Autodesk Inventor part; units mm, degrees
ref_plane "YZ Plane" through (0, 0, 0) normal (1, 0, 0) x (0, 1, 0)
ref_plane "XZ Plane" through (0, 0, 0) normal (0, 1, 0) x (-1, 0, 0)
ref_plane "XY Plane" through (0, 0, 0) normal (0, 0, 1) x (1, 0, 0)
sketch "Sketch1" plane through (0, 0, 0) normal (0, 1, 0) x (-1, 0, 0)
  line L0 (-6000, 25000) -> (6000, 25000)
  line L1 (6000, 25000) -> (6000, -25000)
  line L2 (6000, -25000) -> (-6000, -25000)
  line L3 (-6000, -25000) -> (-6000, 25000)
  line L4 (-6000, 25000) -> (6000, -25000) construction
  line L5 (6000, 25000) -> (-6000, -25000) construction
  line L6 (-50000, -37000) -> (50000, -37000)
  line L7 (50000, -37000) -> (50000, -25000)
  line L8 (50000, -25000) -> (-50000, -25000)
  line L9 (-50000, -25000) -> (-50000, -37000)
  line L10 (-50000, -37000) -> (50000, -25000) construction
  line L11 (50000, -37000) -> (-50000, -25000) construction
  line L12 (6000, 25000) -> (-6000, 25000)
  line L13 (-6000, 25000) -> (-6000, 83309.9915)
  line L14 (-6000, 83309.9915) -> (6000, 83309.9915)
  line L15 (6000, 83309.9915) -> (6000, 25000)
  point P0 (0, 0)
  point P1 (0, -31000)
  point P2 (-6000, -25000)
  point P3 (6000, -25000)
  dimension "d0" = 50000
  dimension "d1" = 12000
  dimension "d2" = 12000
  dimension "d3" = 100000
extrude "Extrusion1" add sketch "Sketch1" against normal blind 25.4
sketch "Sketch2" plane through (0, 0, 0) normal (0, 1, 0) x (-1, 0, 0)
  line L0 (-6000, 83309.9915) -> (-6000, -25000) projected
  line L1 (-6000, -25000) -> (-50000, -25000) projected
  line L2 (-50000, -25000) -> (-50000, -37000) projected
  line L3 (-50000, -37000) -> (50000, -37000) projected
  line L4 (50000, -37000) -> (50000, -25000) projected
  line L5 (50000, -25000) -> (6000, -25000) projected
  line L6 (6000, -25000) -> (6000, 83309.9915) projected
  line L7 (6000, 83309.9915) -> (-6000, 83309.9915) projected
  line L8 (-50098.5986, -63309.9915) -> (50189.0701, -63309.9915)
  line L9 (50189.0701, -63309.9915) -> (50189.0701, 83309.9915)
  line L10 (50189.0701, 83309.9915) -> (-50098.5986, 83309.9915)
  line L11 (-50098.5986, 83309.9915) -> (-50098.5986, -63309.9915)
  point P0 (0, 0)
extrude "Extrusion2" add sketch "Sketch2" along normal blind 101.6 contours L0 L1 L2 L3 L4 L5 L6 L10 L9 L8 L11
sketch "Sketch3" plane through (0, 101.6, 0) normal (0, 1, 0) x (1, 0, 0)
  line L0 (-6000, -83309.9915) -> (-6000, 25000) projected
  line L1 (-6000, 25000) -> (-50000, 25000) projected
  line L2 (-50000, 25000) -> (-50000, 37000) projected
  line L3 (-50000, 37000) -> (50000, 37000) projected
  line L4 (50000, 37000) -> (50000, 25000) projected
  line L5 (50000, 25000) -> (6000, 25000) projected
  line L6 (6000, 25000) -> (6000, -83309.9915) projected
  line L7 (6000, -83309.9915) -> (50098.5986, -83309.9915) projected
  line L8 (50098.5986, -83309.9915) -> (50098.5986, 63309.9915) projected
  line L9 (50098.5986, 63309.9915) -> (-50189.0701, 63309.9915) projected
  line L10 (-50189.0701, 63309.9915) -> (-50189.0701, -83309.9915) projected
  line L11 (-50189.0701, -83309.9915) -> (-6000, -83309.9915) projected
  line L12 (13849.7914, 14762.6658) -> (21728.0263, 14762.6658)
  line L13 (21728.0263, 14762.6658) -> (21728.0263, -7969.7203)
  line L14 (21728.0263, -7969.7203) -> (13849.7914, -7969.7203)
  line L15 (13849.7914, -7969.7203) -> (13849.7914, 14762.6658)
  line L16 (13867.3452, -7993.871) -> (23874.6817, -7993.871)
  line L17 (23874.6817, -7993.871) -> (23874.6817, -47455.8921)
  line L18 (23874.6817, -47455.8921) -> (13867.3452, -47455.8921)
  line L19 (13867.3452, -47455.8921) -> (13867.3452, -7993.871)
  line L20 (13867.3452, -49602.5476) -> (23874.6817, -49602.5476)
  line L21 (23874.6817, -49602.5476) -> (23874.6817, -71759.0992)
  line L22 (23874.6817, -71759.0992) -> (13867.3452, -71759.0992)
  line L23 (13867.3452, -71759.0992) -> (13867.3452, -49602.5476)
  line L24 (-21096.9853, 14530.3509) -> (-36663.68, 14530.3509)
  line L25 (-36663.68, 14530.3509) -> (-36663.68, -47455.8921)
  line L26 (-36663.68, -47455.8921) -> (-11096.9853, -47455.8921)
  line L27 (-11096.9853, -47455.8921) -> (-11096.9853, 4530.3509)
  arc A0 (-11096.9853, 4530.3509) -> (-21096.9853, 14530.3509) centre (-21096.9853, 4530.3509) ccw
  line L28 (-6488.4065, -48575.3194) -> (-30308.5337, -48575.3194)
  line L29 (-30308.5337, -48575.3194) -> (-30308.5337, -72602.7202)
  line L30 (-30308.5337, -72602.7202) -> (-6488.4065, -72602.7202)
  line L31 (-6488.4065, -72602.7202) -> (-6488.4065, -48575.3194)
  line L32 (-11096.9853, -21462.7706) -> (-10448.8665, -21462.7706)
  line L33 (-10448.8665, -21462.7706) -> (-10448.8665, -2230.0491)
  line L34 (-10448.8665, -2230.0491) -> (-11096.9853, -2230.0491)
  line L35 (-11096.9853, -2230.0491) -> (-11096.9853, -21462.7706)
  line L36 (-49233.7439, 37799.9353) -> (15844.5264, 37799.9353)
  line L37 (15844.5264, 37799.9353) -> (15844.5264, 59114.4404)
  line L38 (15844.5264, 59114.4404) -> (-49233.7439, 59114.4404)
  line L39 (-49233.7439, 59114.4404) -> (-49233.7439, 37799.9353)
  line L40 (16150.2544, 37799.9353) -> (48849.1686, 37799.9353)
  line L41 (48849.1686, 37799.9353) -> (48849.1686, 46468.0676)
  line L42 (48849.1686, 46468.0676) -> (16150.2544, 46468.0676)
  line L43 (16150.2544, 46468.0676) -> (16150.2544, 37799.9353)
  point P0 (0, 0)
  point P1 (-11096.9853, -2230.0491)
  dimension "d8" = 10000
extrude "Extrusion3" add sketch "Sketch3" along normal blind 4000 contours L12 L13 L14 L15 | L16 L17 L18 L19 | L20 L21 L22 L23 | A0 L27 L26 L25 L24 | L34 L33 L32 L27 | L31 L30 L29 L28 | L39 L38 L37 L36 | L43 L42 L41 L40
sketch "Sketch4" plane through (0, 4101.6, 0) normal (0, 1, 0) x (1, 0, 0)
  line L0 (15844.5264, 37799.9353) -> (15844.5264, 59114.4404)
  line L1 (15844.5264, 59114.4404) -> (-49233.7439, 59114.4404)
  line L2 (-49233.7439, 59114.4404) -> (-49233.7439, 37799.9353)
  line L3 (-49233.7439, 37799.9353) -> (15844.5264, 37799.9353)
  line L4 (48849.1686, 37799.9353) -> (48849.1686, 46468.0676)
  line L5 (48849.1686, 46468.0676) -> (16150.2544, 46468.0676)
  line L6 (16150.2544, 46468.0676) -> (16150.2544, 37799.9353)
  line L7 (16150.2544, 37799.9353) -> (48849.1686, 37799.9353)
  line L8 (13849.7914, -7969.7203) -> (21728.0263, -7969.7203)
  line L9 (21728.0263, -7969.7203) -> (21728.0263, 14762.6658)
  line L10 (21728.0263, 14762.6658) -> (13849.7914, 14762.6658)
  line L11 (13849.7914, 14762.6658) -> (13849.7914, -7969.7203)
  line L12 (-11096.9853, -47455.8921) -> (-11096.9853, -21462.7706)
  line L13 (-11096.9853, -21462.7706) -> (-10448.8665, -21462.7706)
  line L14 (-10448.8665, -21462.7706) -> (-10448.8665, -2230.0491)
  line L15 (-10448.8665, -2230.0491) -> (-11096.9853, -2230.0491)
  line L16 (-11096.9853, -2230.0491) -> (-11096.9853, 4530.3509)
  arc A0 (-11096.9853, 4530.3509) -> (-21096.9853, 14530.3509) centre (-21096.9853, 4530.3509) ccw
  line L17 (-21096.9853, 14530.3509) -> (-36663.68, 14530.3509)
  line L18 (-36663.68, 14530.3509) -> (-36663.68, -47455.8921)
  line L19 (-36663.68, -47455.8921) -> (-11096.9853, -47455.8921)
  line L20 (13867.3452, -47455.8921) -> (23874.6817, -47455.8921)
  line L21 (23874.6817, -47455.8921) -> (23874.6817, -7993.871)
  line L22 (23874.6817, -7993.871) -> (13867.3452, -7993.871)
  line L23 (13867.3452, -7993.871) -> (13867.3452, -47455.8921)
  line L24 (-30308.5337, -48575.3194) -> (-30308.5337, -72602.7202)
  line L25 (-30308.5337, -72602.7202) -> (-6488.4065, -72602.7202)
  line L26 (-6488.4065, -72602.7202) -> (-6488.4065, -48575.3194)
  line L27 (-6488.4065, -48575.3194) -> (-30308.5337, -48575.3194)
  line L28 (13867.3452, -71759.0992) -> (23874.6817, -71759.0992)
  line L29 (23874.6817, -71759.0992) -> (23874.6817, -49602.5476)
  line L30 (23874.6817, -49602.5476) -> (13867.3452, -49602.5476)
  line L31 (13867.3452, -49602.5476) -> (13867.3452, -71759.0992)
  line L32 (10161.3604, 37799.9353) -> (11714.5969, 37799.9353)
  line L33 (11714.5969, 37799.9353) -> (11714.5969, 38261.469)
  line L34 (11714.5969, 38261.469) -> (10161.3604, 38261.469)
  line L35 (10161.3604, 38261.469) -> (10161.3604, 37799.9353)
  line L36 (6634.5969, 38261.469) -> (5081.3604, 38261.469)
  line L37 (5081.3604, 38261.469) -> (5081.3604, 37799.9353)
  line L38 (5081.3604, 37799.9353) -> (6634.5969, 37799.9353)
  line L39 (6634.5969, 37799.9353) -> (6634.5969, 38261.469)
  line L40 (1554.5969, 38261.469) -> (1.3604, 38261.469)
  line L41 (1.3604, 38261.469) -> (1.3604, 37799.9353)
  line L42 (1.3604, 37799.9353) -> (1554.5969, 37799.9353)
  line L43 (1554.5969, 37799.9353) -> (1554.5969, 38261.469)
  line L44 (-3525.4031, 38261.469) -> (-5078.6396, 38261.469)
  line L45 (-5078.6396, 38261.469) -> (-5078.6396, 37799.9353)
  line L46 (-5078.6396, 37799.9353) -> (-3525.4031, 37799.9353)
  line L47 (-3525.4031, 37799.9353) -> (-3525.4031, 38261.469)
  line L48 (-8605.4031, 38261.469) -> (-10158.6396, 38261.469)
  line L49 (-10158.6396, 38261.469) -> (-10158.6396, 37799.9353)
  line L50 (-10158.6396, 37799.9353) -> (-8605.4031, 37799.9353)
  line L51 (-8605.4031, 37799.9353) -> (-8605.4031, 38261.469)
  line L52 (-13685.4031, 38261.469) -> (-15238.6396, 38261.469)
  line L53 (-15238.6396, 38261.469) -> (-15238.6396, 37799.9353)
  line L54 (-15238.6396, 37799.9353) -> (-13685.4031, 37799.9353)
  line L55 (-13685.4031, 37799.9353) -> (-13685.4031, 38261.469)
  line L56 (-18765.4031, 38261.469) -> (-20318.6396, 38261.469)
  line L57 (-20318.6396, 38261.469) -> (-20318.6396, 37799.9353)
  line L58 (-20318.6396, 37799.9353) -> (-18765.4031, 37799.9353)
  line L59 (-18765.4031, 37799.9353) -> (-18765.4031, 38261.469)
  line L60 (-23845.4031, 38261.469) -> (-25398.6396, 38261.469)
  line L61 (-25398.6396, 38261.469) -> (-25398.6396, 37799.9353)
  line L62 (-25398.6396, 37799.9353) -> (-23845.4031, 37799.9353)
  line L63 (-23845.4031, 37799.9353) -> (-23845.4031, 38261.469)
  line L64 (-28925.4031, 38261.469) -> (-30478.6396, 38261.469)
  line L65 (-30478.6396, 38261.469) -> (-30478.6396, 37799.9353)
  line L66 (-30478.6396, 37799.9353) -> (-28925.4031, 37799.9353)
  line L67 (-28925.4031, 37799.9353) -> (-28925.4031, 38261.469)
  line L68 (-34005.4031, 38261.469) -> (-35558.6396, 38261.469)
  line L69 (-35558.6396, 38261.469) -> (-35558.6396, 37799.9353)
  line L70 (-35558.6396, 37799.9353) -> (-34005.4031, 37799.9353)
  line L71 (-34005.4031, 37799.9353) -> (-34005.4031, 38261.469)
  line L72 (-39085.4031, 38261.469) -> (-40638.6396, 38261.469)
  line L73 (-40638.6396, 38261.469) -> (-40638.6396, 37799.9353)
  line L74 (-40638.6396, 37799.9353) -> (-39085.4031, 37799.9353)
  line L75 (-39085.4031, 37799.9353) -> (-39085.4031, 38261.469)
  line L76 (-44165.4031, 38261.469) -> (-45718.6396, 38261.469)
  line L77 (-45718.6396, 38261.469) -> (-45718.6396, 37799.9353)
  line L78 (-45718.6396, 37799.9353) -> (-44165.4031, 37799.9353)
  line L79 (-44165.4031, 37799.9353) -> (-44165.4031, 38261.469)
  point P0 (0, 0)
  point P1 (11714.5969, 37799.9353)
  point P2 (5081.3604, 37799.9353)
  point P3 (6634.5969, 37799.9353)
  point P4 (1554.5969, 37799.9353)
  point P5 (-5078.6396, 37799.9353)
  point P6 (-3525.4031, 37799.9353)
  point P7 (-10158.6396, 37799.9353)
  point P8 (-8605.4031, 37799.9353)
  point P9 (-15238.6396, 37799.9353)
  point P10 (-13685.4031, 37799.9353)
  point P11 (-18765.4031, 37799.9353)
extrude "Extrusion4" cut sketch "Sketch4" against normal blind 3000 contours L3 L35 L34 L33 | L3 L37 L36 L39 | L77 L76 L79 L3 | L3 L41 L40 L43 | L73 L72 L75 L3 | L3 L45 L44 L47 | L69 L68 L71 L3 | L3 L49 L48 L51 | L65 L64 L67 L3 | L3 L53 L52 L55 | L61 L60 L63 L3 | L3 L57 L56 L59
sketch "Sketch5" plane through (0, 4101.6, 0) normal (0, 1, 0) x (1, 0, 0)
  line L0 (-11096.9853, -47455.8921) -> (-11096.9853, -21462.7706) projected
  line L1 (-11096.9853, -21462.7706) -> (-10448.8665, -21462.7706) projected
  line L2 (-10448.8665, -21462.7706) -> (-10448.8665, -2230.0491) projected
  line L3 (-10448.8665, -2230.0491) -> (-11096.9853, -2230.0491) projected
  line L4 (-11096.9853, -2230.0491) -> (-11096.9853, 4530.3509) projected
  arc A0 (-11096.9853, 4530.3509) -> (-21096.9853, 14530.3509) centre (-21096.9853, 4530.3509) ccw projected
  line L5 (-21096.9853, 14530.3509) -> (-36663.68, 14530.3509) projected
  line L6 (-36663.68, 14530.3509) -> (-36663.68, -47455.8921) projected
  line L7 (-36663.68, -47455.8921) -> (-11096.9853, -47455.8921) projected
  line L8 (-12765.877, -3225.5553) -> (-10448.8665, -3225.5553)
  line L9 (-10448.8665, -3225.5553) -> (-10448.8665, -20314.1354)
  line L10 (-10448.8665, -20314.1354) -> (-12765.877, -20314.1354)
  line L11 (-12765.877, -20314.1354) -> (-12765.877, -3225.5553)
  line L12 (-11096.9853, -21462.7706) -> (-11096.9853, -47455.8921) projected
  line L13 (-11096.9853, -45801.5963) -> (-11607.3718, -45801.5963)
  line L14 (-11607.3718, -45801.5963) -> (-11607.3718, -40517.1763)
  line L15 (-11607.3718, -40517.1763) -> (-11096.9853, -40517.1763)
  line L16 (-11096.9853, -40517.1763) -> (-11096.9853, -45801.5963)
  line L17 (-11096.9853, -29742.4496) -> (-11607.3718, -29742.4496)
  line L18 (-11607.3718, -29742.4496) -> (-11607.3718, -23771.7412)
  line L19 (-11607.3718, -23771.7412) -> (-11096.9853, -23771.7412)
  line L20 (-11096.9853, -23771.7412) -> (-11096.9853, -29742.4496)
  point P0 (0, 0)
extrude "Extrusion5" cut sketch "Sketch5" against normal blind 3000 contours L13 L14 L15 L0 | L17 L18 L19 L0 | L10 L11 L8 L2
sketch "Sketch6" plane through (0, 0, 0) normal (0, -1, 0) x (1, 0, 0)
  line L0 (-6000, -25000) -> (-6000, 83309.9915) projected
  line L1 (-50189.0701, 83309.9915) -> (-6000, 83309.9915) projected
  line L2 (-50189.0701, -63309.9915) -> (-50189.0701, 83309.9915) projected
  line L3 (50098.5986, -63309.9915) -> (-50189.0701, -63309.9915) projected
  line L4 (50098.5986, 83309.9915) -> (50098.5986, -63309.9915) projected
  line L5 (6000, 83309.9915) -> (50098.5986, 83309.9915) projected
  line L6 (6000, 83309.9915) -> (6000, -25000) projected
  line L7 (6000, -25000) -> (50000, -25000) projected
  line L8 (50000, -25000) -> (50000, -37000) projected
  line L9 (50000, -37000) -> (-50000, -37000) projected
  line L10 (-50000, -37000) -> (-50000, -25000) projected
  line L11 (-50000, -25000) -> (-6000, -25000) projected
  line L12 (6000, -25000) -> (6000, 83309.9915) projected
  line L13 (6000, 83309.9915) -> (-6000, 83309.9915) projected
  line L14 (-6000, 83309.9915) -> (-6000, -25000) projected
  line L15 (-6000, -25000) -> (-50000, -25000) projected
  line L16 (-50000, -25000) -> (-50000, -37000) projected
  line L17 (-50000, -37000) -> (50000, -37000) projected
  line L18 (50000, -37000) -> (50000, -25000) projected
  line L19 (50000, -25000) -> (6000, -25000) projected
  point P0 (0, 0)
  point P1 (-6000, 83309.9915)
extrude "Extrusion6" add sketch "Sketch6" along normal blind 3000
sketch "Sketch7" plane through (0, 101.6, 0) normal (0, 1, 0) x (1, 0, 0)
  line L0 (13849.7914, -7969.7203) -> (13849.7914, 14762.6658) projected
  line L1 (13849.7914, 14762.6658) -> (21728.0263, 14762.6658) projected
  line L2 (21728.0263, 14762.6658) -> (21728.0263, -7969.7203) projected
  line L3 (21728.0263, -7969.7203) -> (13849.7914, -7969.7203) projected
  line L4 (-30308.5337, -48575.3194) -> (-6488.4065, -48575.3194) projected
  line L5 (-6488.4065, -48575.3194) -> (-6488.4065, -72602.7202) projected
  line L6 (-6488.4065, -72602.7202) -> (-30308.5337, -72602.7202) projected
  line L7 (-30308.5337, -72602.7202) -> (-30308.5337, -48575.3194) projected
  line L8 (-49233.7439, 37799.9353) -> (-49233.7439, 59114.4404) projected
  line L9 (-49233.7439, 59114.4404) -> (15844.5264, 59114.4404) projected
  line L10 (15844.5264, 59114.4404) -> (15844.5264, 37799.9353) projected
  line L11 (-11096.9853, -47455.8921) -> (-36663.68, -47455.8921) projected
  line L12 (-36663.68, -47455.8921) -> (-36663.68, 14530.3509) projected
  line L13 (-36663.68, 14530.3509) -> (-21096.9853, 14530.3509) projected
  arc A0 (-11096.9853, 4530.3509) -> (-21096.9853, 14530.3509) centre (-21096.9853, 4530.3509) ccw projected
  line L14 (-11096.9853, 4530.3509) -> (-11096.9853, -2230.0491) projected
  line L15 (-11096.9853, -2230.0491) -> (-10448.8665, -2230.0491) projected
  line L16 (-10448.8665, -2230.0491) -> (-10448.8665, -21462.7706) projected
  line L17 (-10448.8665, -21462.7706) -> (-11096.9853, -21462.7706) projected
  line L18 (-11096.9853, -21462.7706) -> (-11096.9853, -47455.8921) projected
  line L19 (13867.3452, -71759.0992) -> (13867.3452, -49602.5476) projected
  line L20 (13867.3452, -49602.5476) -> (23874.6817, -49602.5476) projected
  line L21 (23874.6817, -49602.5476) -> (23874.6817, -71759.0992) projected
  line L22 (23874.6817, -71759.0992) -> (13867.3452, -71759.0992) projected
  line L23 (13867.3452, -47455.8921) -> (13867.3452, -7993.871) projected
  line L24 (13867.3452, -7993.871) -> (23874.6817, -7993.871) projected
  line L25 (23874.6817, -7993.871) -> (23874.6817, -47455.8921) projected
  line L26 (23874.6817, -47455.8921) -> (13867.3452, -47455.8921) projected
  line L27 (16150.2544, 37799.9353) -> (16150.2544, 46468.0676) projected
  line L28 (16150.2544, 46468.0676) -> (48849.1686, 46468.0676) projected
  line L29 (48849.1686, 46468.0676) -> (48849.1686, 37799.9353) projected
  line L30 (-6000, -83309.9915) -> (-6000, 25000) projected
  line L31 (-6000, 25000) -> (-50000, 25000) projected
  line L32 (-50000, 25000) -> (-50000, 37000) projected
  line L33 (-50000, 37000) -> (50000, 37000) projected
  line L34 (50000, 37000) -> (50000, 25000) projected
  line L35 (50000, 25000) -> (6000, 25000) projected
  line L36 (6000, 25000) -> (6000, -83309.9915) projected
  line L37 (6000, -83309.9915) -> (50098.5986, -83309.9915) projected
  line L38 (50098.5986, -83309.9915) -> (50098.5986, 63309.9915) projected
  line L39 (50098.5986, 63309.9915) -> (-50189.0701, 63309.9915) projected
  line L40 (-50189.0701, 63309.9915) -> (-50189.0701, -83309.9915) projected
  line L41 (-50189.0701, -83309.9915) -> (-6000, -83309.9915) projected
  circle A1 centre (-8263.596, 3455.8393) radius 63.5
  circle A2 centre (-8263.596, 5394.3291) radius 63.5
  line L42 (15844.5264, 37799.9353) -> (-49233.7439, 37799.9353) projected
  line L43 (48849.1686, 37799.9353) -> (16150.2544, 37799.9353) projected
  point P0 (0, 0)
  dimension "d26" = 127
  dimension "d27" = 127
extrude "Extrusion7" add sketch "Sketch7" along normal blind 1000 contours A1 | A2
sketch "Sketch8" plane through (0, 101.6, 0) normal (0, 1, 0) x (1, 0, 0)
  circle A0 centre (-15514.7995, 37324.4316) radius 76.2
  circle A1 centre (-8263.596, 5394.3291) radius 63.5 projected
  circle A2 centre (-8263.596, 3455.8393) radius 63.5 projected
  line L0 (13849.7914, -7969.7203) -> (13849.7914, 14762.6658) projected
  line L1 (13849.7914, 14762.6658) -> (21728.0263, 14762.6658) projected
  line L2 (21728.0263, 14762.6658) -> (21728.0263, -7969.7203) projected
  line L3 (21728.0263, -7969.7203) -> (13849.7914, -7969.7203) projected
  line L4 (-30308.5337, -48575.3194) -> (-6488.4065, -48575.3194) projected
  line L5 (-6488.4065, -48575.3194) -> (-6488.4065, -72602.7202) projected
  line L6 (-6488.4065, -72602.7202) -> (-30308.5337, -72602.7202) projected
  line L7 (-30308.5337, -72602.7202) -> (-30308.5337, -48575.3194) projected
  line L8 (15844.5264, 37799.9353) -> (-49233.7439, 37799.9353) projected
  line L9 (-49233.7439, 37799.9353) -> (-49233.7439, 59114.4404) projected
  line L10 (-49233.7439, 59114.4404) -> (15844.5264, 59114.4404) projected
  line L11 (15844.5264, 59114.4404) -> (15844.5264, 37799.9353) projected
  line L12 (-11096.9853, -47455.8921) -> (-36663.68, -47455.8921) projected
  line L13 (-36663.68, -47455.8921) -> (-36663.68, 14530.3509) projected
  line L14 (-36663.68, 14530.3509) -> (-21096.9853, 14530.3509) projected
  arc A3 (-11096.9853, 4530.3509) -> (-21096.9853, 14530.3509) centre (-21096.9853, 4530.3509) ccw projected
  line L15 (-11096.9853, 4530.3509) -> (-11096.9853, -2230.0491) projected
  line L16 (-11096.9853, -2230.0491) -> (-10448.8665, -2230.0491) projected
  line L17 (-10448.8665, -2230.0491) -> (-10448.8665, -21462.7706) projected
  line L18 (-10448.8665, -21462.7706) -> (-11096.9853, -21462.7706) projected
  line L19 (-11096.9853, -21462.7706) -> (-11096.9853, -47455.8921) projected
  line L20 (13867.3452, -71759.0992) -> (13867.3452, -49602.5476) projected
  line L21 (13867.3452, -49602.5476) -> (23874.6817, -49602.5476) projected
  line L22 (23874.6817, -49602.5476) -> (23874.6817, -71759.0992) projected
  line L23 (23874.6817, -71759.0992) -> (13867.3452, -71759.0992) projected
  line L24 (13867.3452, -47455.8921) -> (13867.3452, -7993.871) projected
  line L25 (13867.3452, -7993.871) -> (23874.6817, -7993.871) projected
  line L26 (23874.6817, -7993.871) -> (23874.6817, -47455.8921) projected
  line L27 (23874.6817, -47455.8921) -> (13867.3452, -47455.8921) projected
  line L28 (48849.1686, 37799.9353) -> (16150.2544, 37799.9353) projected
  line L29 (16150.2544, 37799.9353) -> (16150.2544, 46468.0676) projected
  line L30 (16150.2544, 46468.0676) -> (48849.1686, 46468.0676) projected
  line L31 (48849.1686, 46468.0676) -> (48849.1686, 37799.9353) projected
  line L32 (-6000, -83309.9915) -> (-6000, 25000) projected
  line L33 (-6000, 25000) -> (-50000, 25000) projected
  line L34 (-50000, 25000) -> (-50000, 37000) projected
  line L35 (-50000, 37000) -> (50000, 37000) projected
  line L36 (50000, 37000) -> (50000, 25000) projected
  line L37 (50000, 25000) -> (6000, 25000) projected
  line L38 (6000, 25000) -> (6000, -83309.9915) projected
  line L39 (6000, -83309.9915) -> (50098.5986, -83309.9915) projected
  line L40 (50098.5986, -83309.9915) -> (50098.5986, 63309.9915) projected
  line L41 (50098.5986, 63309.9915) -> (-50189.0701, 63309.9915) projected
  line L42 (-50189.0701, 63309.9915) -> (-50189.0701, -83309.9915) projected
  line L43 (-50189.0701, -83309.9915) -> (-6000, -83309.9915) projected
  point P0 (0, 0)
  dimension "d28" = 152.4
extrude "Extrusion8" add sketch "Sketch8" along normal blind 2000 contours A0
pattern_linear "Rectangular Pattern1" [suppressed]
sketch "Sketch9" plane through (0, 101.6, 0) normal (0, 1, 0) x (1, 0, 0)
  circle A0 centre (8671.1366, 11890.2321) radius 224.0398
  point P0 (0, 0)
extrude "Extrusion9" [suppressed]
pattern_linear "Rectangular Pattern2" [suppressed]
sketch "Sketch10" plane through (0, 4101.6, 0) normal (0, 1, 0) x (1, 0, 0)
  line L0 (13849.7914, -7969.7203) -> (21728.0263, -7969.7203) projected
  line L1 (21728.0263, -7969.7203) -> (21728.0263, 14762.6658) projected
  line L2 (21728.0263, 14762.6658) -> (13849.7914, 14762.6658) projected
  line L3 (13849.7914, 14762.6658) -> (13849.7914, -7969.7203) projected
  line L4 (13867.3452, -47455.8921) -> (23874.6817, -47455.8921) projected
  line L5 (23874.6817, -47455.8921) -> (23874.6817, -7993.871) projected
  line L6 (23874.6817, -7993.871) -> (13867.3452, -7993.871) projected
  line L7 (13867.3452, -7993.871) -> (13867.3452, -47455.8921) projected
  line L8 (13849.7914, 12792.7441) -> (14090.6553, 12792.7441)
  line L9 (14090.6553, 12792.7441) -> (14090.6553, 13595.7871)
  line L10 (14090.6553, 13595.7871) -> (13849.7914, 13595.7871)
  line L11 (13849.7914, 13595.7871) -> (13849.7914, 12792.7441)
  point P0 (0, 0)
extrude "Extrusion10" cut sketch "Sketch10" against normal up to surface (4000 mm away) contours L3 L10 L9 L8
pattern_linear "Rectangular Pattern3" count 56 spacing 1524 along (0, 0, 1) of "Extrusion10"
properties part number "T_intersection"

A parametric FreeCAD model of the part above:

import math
import FreeCAD as App
import Part
import Sketcher

V = App.Vector

doc = App.newDocument("Part")
body = doc.addObject("PartDesign::Body", "Body")
body.AllowCompound = True

# Sketch on XZ plane
sketch1 = doc.addObject("Sketcher::SketchObject", "Sketch")
body.addObject(sketch1)
sketch1.AttachmentSupport = (doc.XZ_Plane, [""])
sketch1.MapMode = "FlatFace"
sketch1.addGeometry([
    Part.LineSegment(V(6000, 83309.9915, 0), V(6000, -25000, 0)),  # 0
    Part.LineSegment(V(6000, -25000, 0), V(50000, -25000, 0)),  # 1
    Part.LineSegment(V(50000, -25000, 0), V(50000, -37000, 0)),  # 2
    Part.LineSegment(V(50000, -37000, 0), V(-50000, -37000, 0)),  # 3
    Part.LineSegment(V(-50000, -37000, 0), V(-50000, -25000, 0)),  # 4
    Part.LineSegment(V(-50000, -25000, 0), V(-6000, -25000, 0)),  # 5
    Part.LineSegment(V(-6000, -25000, 0), V(-6000, 83309.9915, 0)),  # 6
    Part.LineSegment(V(-6000, 83309.9915, 0), V(6000, 83309.9915, 0)),  # 7
], False)
sketch1.addConstraint([
    Sketcher.Constraint("Coincident", 0, 2, 1, 1),
    Sketcher.Constraint("Coincident", 1, 2, 2, 1),
    Sketcher.Constraint("Coincident", 2, 2, 3, 1),
    Sketcher.Constraint("Coincident", 3, 2, 4, 1),
    Sketcher.Constraint("Coincident", 4, 2, 5, 1),
    Sketcher.Constraint("Coincident", 5, 2, 6, 1),
    Sketcher.Constraint("Coincident", 6, 2, 7, 1),
    Sketcher.Constraint("Coincident", 7, 2, 0, 1),
    Sketcher.Constraint("Vertical", 0),
    Sketcher.Constraint("Horizontal", 1),
    Sketcher.Constraint("Vertical", 2),
    Sketcher.Constraint("Horizontal", 3),
    Sketcher.Constraint("Vertical", 4),
    Sketcher.Constraint("Horizontal", 5),
    Sketcher.Constraint("Vertical", 6),
    Sketcher.Constraint("Horizontal", 7),
    Sketcher.Constraint("Symmetric", 1, 2, 4, 2, -2),
    Sketcher.Constraint("Equal", 1, 5),
    Sketcher.Constraint("Equal", 7, 2),
    Sketcher.Constraint("DistanceX", 3, 2, 3, 1, 100000.0),
    Sketcher.Constraint("DistanceX", 7, 1, 7, 2, 12000.0),
    Sketcher.Constraint("DistanceY", 0, 2, -1, 1, 25000.0),
    Sketcher.Constraint("DistanceY", 0, 2, 0, 1, 108309.9915),
])
pad1 = doc.addObject("PartDesign::Pad", "Pad")
body.addObject(pad1)
pad1.Profile = sketch1
pad1.Length = 25.4

# Sketch on XZ plane
sketch2 = doc.addObject("Sketcher::SketchObject", "Sketch001")
body.addObject(sketch2)
sketch2.AttachmentSupport = (doc.XZ_Plane, [""])
sketch2.MapMode = "FlatFace"
sketch2.addGeometry([
    Part.LineSegment(V(6000, -25000, 0), V(6000, 83309.9915, 0)),  # 0
    Part.LineSegment(V(6000, 83309.9915, 0), V(50098.5986, 83309.9915, 0)),  # 1
    Part.LineSegment(V(50098.5986, 83309.9915, 0), V(50098.5986, -63309.9915, 0)),  # 2
    Part.LineSegment(V(50098.5986, -63309.9915, 0), V(-50189.0701, -63309.9915, 0)),  # 3
    Part.LineSegment(V(-50189.0701, -63309.9915, 0), V(-50189.0701, 83309.9915, 0)),  # 4
    Part.LineSegment(V(-50189.0701, 83309.9915, 0), V(-6000, 83309.9915, 0)),  # 5
    Part.LineSegment(V(-6000, 83309.9915, 0), V(-6000, -25000, 0)),  # 6
    Part.LineSegment(V(-6000, -25000, 0), V(-50000, -25000, 0)),  # 7
    Part.LineSegment(V(-50000, -25000, 0), V(-50000, -37000, 0)),  # 8
    Part.LineSegment(V(-50000, -37000, 0), V(50000, -37000, 0)),  # 9
    Part.LineSegment(V(50000, -37000, 0), V(50000, -25000, 0)),  # 10
    Part.LineSegment(V(50000, -25000, 0), V(6000, -25000, 0)),  # 11
], False)
sketch2.addConstraint([
    Sketcher.Constraint("Coincident", 0, 2, 1, 1),
    Sketcher.Constraint("Coincident", 1, 2, 2, 1),
    Sketcher.Constraint("Coincident", 2, 2, 3, 1),
    Sketcher.Constraint("Coincident", 3, 2, 4, 1),
    Sketcher.Constraint("Coincident", 4, 2, 5, 1),
    Sketcher.Constraint("Coincident", 5, 2, 6, 1),
    Sketcher.Constraint("Coincident", 6, 2, 7, 1),
    Sketcher.Constraint("Coincident", 7, 2, 8, 1),
    Sketcher.Constraint("Coincident", 8, 2, 9, 1),
    Sketcher.Constraint("Coincident", 9, 2, 10, 1),
    Sketcher.Constraint("Coincident", 10, 2, 11, 1),
    Sketcher.Constraint("Coincident", 11, 2, 0, 1),
    Sketcher.Constraint("Vertical", 0),
    Sketcher.Constraint("Horizontal", 1),
    Sketcher.Constraint("Vertical", 2),
    Sketcher.Constraint("Horizontal", 3),
    Sketcher.Constraint("Vertical", 4),
    Sketcher.Constraint("Horizontal", 5),
    Sketcher.Constraint("Vertical", 6),
    Sketcher.Constraint("Horizontal", 7),
    Sketcher.Constraint("Vertical", 8),
    Sketcher.Constraint("Horizontal", 9),
    Sketcher.Constraint("Vertical", 10),
    Sketcher.Constraint("Horizontal", 11),
    Sketcher.Constraint("Symmetric", 0, 2, 5, 2, -2),
    Sketcher.Constraint("Symmetric", 7, 2, 10, 2, -2),
    Sketcher.Constraint("DistanceX", 7, 2, 7, 1, 44000.0),
    Sketcher.Constraint("DistanceX", 9, 1, 9, 2, 100000.0),
    Sketcher.Constraint("DistanceY", 8, 2, 8, 1, 12000.0),
    Sketcher.Constraint("DistanceY", 6, 2, -1, 1, 25000.0),
    Sketcher.Constraint("DistanceX", 5, 1, 5, 2, 44189.07),
    Sketcher.Constraint("DistanceY", 2, 2, 2, 1, 146619.983),
    Sketcher.Constraint("DistanceX", 1, 1, 1, 2, 44098.5986),
    Sketcher.Constraint("DistanceY", 0, 1, 0, 2, 108309.9915),
])
pad2 = doc.addObject("PartDesign::Pad", "Pad001")
body.addObject(pad2)
pad2.Profile = sketch2
pad2.Length = 101.6
pad2.Reversed = True

# Sketch on XZ plane
sketch3 = doc.addObject("Sketcher::SketchObject", "Sketch002")
body.addObject(sketch3)
sketch3.AttachmentSupport = (doc.XZ_Plane, [""])
sketch3.MapMode = "FlatFace"
sketch3.AttachmentOffset = App.Placement(V(0, 0, -101.6), App.Rotation())
sketch3.addGeometry([
    Part.LineSegment(V(21728.0263, -14762.6658, 0), V(13849.7914, -14762.6658, 0)),  # 0
    Part.LineSegment(V(13849.7914, -14762.6658, 0), V(13849.7914, 7969.7203, 0)),  # 1
    Part.LineSegment(V(13849.7914, 7969.7203, 0), V(21728.0263, 7969.7203, 0)),  # 2
    Part.LineSegment(V(21728.0263, 7969.7203, 0), V(21728.0263, -14762.6658, 0)),  # 3
    Part.LineSegment(V(23874.6817, 7993.871, 0), V(13867.3452, 7993.871, 0)),  # 4
    Part.LineSegment(V(13867.3452, 7993.871, 0), V(13867.3452, 47455.8921, 0)),  # 5
    Part.LineSegment(V(13867.3452, 47455.8921, 0), V(23874.6817, 47455.8921, 0)),  # 6
    Part.LineSegment(V(23874.6817, 47455.8921, 0), V(23874.6817, 7993.871, 0)),  # 7
    Part.LineSegment(V(23874.6817, 49602.5476, 0), V(13867.3452, 49602.5476, 0)),  # 8
    Part.LineSegment(V(13867.3452, 49602.5476, 0), V(13867.3452, 71759.0992, 0)),  # 9
    Part.LineSegment(V(13867.3452, 71759.0992, 0), V(23874.6817, 71759.0992, 0)),  # 10
    Part.LineSegment(V(23874.6817, 71759.0992, 0), V(23874.6817, 49602.5476, 0)),  # 11
    Part.ArcOfCircle(Part.Circle(V(-21096.9853, -4530.3509, 0), V(0, 0, 1), 10000), math.radians(-90), math.radians(0)),  # 12
    Part.LineSegment(V(-21096.9853, -14530.3509, 0), V(-36663.68, -14530.3509, 0)),  # 13
    Part.LineSegment(V(-36663.68, -14530.3509, 0), V(-36663.68, 47455.8921, 0)),  # 14
    Part.LineSegment(V(-36663.68, 47455.8921, 0), V(-11096.9853, 47455.8921, 0)),  # 15
    Part.LineSegment(V(-11096.9853, 47455.8921, 0), V(-11096.9853, 21462.7706, 0)),  # 16
    Part.LineSegment(V(-11096.9853, 21462.7706, 0), V(-10448.8665, 21462.7706, 0)),  # 17
    Part.LineSegment(V(-10448.8665, 21462.7706, 0), V(-10448.8665, 2230.0491, 0)),  # 18
    Part.LineSegment(V(-10448.8665, 2230.0491, 0), V(-11096.9853, 2230.0491, 0)),  # 19
    Part.LineSegment(V(-11096.9853, 2230.0491, 0), V(-11096.9853, -4530.3509, 0)),  # 20
    Part.LineSegment(V(-6488.4065, 72602.7202, 0), V(-6488.4065, 48575.3194, 0)),  # 21
    Part.LineSegment(V(-6488.4065, 48575.3194, 0), V(-30308.5337, 48575.3194, 0)),  # 22
    Part.LineSegment(V(-30308.5337, 48575.3194, 0), V(-30308.5337, 72602.7202, 0)),  # 23
    Part.LineSegment(V(-30308.5337, 72602.7202, 0), V(-6488.4065, 72602.7202, 0)),  # 24
    Part.LineSegment(V(-49233.7439, -59114.4404, 0), V(-49233.7439, -37799.9353, 0)),  # 25
    Part.LineSegment(V(-49233.7439, -37799.9353, 0), V(15844.5264, -37799.9353, 0)),  # 26
    Part.LineSegment(V(15844.5264, -37799.9353, 0), V(15844.5264, -59114.4404, 0)),  # 27
    Part.LineSegment(V(15844.5264, -59114.4404, 0), V(-49233.7439, -59114.4404, 0)),  # 28
    Part.LineSegment(V(16150.2544, -46468.0676, 0), V(16150.2544, -37799.9353, 0)),  # 29
    Part.LineSegment(V(16150.2544, -37799.9353, 0), V(48849.1686, -37799.9353, 0)),  # 30
    Part.LineSegment(V(48849.1686, -37799.9353, 0), V(48849.1686, -46468.0676, 0)),  # 31
    Part.LineSegment(V(48849.1686, -46468.0676, 0), V(16150.2544, -46468.0676, 0)),  # 32
], False)
sketch3.addConstraint([
    Sketcher.Constraint("Coincident", 0, 2, 1, 1),
    Sketcher.Constraint("Coincident", 1, 2, 2, 1),
    Sketcher.Constraint("Coincident", 2, 2, 3, 1),
    Sketcher.Constraint("Coincident", 3, 2, 0, 1),
    Sketcher.Constraint("Coincident", 4, 2, 5, 1),
    Sketcher.Constraint("Coincident", 5, 2, 6, 1),
    Sketcher.Constraint("Coincident", 6, 2, 7, 1),
    Sketcher.Constraint("Coincident", 7, 2, 4, 1),
    Sketcher.Constraint("Coincident", 8, 2, 9, 1),
    Sketcher.Constraint("Coincident", 9, 2, 10, 1),
    Sketcher.Constraint("Coincident", 10, 2, 11, 1),
    Sketcher.Constraint("Coincident", 11, 2, 8, 1),
    Sketcher.Constraint("Coincident", 12, 1, 13, 1),
    Sketcher.Constraint("Coincident", 13, 2, 14, 1),
    Sketcher.Constraint("Coincident", 14, 2, 15, 1),
    Sketcher.Constraint("Coincident", 15, 2, 16, 1),
    Sketcher.Constraint("Coincident", 16, 2, 17, 1),
    Sketcher.Constraint("Coincident", 17, 2, 18, 1),
    Sketcher.Constraint("Coincident", 18, 2, 19, 1),
    Sketcher.Constraint("Coincident", 19, 2, 20, 1),
    Sketcher.Constraint("Coincident", 20, 2, 12, 2),
    Sketcher.Constraint("Coincident", 21, 2, 22, 1),
    Sketcher.Constraint("Coincident", 22, 2, 23, 1),
    Sketcher.Constraint("Coincident", 23, 2, 24, 1),
    Sketcher.Constraint("Coincident", 24, 2, 21, 1),
    Sketcher.Constraint("Coincident", 25, 2, 26, 1),
    Sketcher.Constraint("Coincident", 26, 2, 27, 1),
    Sketcher.Constraint("Coincident", 27, 2, 28, 1),
    Sketcher.Constraint("Coincident", 28, 2, 25, 1),
    Sketcher.Constraint("Coincident", 29, 2, 30, 1),
    Sketcher.Constraint("Coincident", 30, 2, 31, 1),
    Sketcher.Constraint("Coincident", 31, 2, 32, 1),
    Sketcher.Constraint("Coincident", 32, 2, 29, 1),
    Sketcher.Constraint("Horizontal", 0),
    Sketcher.Constraint("Vertical", 1),
    Sketcher.Constraint("Horizontal", 2),
    Sketcher.Constraint("Vertical", 3),
    Sketcher.Constraint("Horizontal", 4),
    Sketcher.Constraint("Vertical", 5),
    Sketcher.Constraint("Horizontal", 6),
    Sketcher.Constraint("Vertical", 7),
    Sketcher.Constraint("Horizontal", 8),
    Sketcher.Constraint("Vertical", 9),
    Sketcher.Constraint("Horizontal", 10),
    Sketcher.Constraint("Vertical", 11),
    Sketcher.Constraint("Horizontal", 13),
    Sketcher.Constraint("Vertical", 14),
    Sketcher.Constraint("Horizontal", 15),
    Sketcher.Constraint("Vertical", 16),
    Sketcher.Constraint("Horizontal", 17),
    Sketcher.Constraint("Vertical", 18),
    Sketcher.Constraint("Horizontal", 19),
    Sketcher.Constraint("Vertical", 20),
    Sketcher.Constraint("Vertical", 21),
    Sketcher.Constraint("Horizontal", 22),
    Sketcher.Constraint("Vertical", 23),
    Sketcher.Constraint("Horizontal", 24),
    Sketcher.Constraint("Vertical", 25),
    Sketcher.Constraint("Horizontal", 26),
    Sketcher.Constraint("Vertical", 27),
    Sketcher.Constraint("Horizontal", 28),
    Sketcher.Constraint("Vertical", 29),
    Sketcher.Constraint("Horizontal", 30),
    Sketcher.Constraint("Vertical", 31),
    Sketcher.Constraint("Horizontal", 32),
    Sketcher.Constraint("Horizontal", 6, 2, 14, 2),
    Sketcher.Constraint("Horizontal", 12, 3, 20, 2),
    Sketcher.Constraint("Horizontal", 26, 2, 29, 2),
    Sketcher.Constraint("Vertical", 5, 2, 8, 2),
    Sketcher.Constraint("Vertical", 7, 2, 10, 2),
    Sketcher.Constraint("Vertical", 16, 2, 19, 2),
    Sketcher.Constraint("Radius", 12, 10000.0),
    Sketcher.Constraint("DistanceY", 20, 2, 20, 1, 6760.4),
    Sketcher.Constraint("DistanceX", 26, 2, 3, 2, 5883.5),
    Sketcher.Constraint("DistanceX", 0, 2, 0, 1, 7878.235),
    Sketcher.Constraint("DistanceY", 1, 1, 1, 2, 22732.386),
    Sketcher.Constraint("DistanceY", 5, 1, 5, 2, 39462.021),
    Sketcher.Constraint("DistanceY", 14, 1, 14, 2, 61986.243),
    Sketcher.Constraint("DistanceY", 25, 1, 25, 2, 21314.505),
    Sketcher.Constraint("DistanceX", 13, 2, -1, 1, 36663.68),
    Sketcher.Constraint("DistanceX", 17, 2, 21, 2, 3960.46),
    Sketcher.Constraint("DistanceX", 4, 2, 4, 1, 10007.3365),
    Sketcher.Constraint("DistanceX", 13, 2, 13, 1, 15566.6947),
    Sketcher.Constraint("DistanceX", 15, 1, 15, 2, 25566.6947),
    Sketcher.Constraint("DistanceX", 17, 1, 17, 2, 648.1188),
    Sketcher.Constraint("DistanceX", 22, 2, 22, 1, 23820.1272),
    Sketcher.Constraint("DistanceX", 26, 1, 26, 2, 65078.2703),
    Sketcher.Constraint("DistanceX", 30, 1, 30, 2, 32698.9142),
    Sketcher.Constraint("DistanceY", 9, 1, 9, 2, 22156.5516),
    Sketcher.Constraint("DistanceY", 16, 2, 16, 1, 25993.1215),
    Sketcher.Constraint("DistanceY", 21, 2, 21, 1, 24027.4008),
    Sketcher.Constraint("DistanceY", 29, 1, 29, 2, 8668.1323),
    Sketcher.Constraint("DistanceY", 12, 3, -1, 1, 4530.351),
    Sketcher.Constraint("DistanceX", 25, 2, -1, 1, 49233.744),
    Sketcher.Constraint("DistanceY", 0, 2, 12, 3, 10232.315),
    Sketcher.Constraint("DistanceX", 4, 2, 2, 2, 7860.681),
    Sketcher.Constraint("DistanceY", 5, 2, 9, 2, 24303.207),
    Sketcher.Constraint("DistanceY", 14, 2, 23, 2, 25146.828),
    Sketcher.Constraint("DistanceX", 26, 2, 29, 2, 305.728),
    Sketcher.Constraint("DistanceY", 25, 2, -1, 1, 37799.9353),
])
pad3 = doc.addObject("PartDesign::Pad", "Pad002")
body.addObject(pad3)
pad3.Profile = sketch3
pad3.Length = 4000
pad3.Reversed = True

# Sketch on XZ plane
sketch4 = doc.addObject("Sketcher::SketchObject", "Sketch003")
body.addObject(sketch4)
sketch4.AttachmentSupport = (doc.XZ_Plane, [""])
sketch4.MapMode = "FlatFace"
sketch4.AttachmentOffset = App.Placement(V(0, 0, -4101.6), App.Rotation())
sketch4.addGeometry([
    Part.LineSegment(V(10161.3604, -37799.9353, 0), V(11714.5969, -37799.9353, 0)),  # 0
    Part.LineSegment(V(11714.5969, -37799.9353, 0), V(11714.5969, -38261.469, 0)),  # 1
    Part.LineSegment(V(11714.5969, -38261.469, 0), V(10161.3604, -38261.469, 0)),  # 2
    Part.LineSegment(V(10161.3604, -38261.469, 0), V(10161.3604, -37799.9353, 0)),  # 3
    Part.LineSegment(V(5081.3604, -37799.9353, 0), V(6634.5969, -37799.9353, 0)),  # 4
    Part.LineSegment(V(6634.5969, -37799.9353, 0), V(6634.5969, -38261.469, 0)),  # 5
    Part.LineSegment(V(6634.5969, -38261.469, 0), V(5081.3604, -38261.469, 0)),  # 6
    Part.LineSegment(V(5081.3604, -38261.469, 0), V(5081.3604, -37799.9353, 0)),  # 7
    Part.LineSegment(V(-45718.6396, -38261.469, 0), V(-45718.6396, -37799.9353, 0)),  # 8
    Part.LineSegment(V(-45718.6396, -37799.9353, 0), V(-44165.4031, -37799.9353, 0)),  # 9
    Part.LineSegment(V(-44165.4031, -37799.9353, 0), V(-44165.4031, -38261.469, 0)),  # 10
    Part.LineSegment(V(-44165.4031, -38261.469, 0), V(-45718.6396, -38261.469, 0)),  # 11
    Part.LineSegment(V(1.3604, -37799.9353, 0), V(1554.5969, -37799.9353, 0)),  # 12
    Part.LineSegment(V(1554.5969, -37799.9353, 0), V(1554.5969, -38261.469, 0)),  # 13
    Part.LineSegment(V(1554.5969, -38261.469, 0), V(1.3604, -38261.469, 0)),  # 14
    Part.LineSegment(V(1.3604, -38261.469, 0), V(1.3604, -37799.9353, 0)),  # 15
    Part.LineSegment(V(-40638.6396, -38261.469, 0), V(-40638.6396, -37799.9353, 0)),  # 16
    Part.LineSegment(V(-40638.6396, -37799.9353, 0), V(-39085.4031, -37799.9353, 0)),  # 17
    Part.LineSegment(V(-39085.4031, -37799.9353, 0), V(-39085.4031, -38261.469, 0)),  # 18
    Part.LineSegment(V(-39085.4031, -38261.469, 0), V(-40638.6396, -38261.469, 0)),  # 19
    Part.LineSegment(V(-5078.6396, -37799.9353, 0), V(-3525.4031, -37799.9353, 0)),  # 20
    Part.LineSegment(V(-3525.4031, -37799.9353, 0), V(-3525.4031, -38261.469, 0)),  # 21
    Part.LineSegment(V(-3525.4031, -38261.469, 0), V(-5078.6396, -38261.469, 0)),  # 22
    Part.LineSegment(V(-5078.6396, -38261.469, 0), V(-5078.6396, -37799.9353, 0)),  # 23
    Part.LineSegment(V(-35558.6396, -38261.469, 0), V(-35558.6396, -37799.9353, 0)),  # 24
    Part.LineSegment(V(-35558.6396, -37799.9353, 0), V(-34005.4031, -37799.9353, 0)),  # 25
    Part.LineSegment(V(-34005.4031, -37799.9353, 0), V(-34005.4031, -38261.469, 0)),  # 26
    Part.LineSegment(V(-34005.4031, -38261.469, 0), V(-35558.6396, -38261.469, 0)),  # 27
    Part.LineSegment(V(-10158.6396, -37799.9353, 0), V(-8605.4031, -37799.9353, 0)),  # 28
    Part.LineSegment(V(-8605.4031, -37799.9353, 0), V(-8605.4031, -38261.469, 0)),  # 29
    Part.LineSegment(V(-8605.4031, -38261.469, 0), V(-10158.6396, -38261.469, 0)),  # 30
    Part.LineSegment(V(-10158.6396, -38261.469, 0), V(-10158.6396, -37799.9353, 0)),  # 31
    Part.LineSegment(V(-30478.6396, -38261.469, 0), V(-30478.6396, -37799.9353, 0)),  # 32
    Part.LineSegment(V(-30478.6396, -37799.9353, 0), V(-28925.4031, -37799.9353, 0)),  # 33
    Part.LineSegment(V(-28925.4031, -37799.9353, 0), V(-28925.4031, -38261.469, 0)),  # 34
    Part.LineSegment(V(-28925.4031, -38261.469, 0), V(-30478.6396, -38261.469, 0)),  # 35
    Part.LineSegment(V(-15238.6396, -37799.9353, 0), V(-13685.4031, -37799.9353, 0)),  # 36
    Part.LineSegment(V(-13685.4031, -37799.9353, 0), V(-13685.4031, -38261.469, 0)),  # 37
    Part.LineSegment(V(-13685.4031, -38261.469, 0), V(-15238.6396, -38261.469, 0)),  # 38
    Part.LineSegment(V(-15238.6396, -38261.469, 0), V(-15238.6396, -37799.9353, 0)),  # 39
    Part.LineSegment(V(-25398.6396, -38261.469, 0), V(-25398.6396, -37799.9353, 0)),  # 40
    Part.LineSegment(V(-25398.6396, -37799.9353, 0), V(-23845.4031, -37799.9353, 0)),  # 41
    Part.LineSegment(V(-23845.4031, -37799.9353, 0), V(-23845.4031, -38261.469, 0)),  # 42
    Part.LineSegment(V(-23845.4031, -38261.469, 0), V(-25398.6396, -38261.469, 0)),  # 43
    Part.LineSegment(V(-20318.6396, -37799.9353, 0), V(-18765.4031, -37799.9353, 0)),  # 44
    Part.LineSegment(V(-18765.4031, -37799.9353, 0), V(-18765.4031, -38261.469, 0)),  # 45
    Part.LineSegment(V(-18765.4031, -38261.469, 0), V(-20318.6396, -38261.469, 0)),  # 46
    Part.LineSegment(V(-20318.6396, -38261.469, 0), V(-20318.6396, -37799.9353, 0)),  # 47
], False)
sketch4.addConstraint([
    Sketcher.Constraint("Coincident", 0, 2, 1, 1),
    Sketcher.Constraint("Coincident", 1, 2, 2, 1),
    Sketcher.Constraint("Coincident", 2, 2, 3, 1),
    Sketcher.Constraint("Coincident", 3, 2, 0, 1),
    Sketcher.Constraint("Coincident", 4, 2, 5, 1),
    Sketcher.Constraint("Coincident", 5, 2, 6, 1),
    Sketcher.Constraint("Coincident", 6, 2, 7, 1),
    Sketcher.Constraint("Coincident", 7, 2, 4, 1),
    Sketcher.Constraint("Coincident", 8, 2, 9, 1),
    Sketcher.Constraint("Coincident", 9, 2, 10, 1),
    Sketcher.Constraint("Coincident", 10, 2, 11, 1),
    Sketcher.Constraint("Coincident", 11, 2, 8, 1),
    Sketcher.Constraint("Coincident", 12, 2, 13, 1),
    Sketcher.Constraint("Coincident", 13, 2, 14, 1),
    Sketcher.Constraint("Coincident", 14, 2, 15, 1),
    Sketcher.Constraint("Coincident", 15, 2, 12, 1),
    Sketcher.Constraint("Coincident", 16, 2, 17, 1),
    Sketcher.Constraint("Coincident", 17, 2, 18, 1),
    Sketcher.Constraint("Coincident", 18, 2, 19, 1),
    Sketcher.Constraint("Coincident", 19, 2, 16, 1),
    Sketcher.Constraint("Coincident", 20, 2, 21, 1),
    Sketcher.Constraint("Coincident", 21, 2, 22, 1),
    Sketcher.Constraint("Coincident", 22, 2, 23, 1),
    Sketcher.Constraint("Coincident", 23, 2, 20, 1),
    Sketcher.Constraint("Coincident", 24, 2, 25, 1),
    Sketcher.Constraint("Coincident", 25, 2, 26, 1),
    Sketcher.Constraint("Coincident", 26, 2, 27, 1),
    Sketcher.Constraint("Coincident", 27, 2, 24, 1),
    Sketcher.Constraint("Coincident", 28, 2, 29, 1),
    Sketcher.Constraint("Coincident", 29, 2, 30, 1),
    Sketcher.Constraint("Coincident", 30, 2, 31, 1),
    Sketcher.Constraint("Coincident", 31, 2, 28, 1),
    Sketcher.Constraint("Coincident", 32, 2, 33, 1),
    Sketcher.Constraint("Coincident", 33, 2, 34, 1),
    Sketcher.Constraint("Coincident", 34, 2, 35, 1),
    Sketcher.Constraint("Coincident", 35, 2, 32, 1),
    Sketcher.Constraint("Coincident", 36, 2, 37, 1),
    Sketcher.Constraint("Coincident", 37, 2, 38, 1),
    Sketcher.Constraint("Coincident", 38, 2, 39, 1),
    Sketcher.Constraint("Coincident", 39, 2, 36, 1),
    Sketcher.Constraint("Coincident", 40, 2, 41, 1),
    Sketcher.Constraint("Coincident", 41, 2, 42, 1),
    Sketcher.Constraint("Coincident", 42, 2, 43, 1),
    Sketcher.Constraint("Coincident", 43, 2, 40, 1),
    Sketcher.Constraint("Coincident", 44, 2, 45, 1),
    Sketcher.Constraint("Coincident", 45, 2, 46, 1),
    Sketcher.Constraint("Coincident", 46, 2, 47, 1),
    Sketcher.Constraint("Coincident", 47, 2, 44, 1),
    Sketcher.Constraint("Horizontal", 0),
    Sketcher.Constraint("Vertical", 1),
    Sketcher.Constraint("Horizontal", 2),
    Sketcher.Constraint("Vertical", 3),
    Sketcher.Constraint("Horizontal", 4),
    Sketcher.Constraint("Vertical", 5),
    Sketcher.Constraint("Horizontal", 6),
    Sketcher.Constraint("Vertical", 7),
    Sketcher.Constraint("Vertical", 8),
    Sketcher.Constraint("Horizontal", 9),
    Sketcher.Constraint("Vertical", 10),
    Sketcher.Constraint("Horizontal", 11),
    Sketcher.Constraint("Horizontal", 12),
    Sketcher.Constraint("Vertical", 13),
    Sketcher.Constraint("Horizontal", 14),
    Sketcher.Constraint("Vertical", 15),
    Sketcher.Constraint("Vertical", 16),
    Sketcher.Constraint("Horizontal", 17),
    Sketcher.Constraint("Vertical", 18),
    Sketcher.Constraint("Horizontal", 19),
    Sketcher.Constraint("Horizontal", 20),
    Sketcher.Constraint("Vertical", 21),
    Sketcher.Constraint("Horizontal", 22),
    Sketcher.Constraint("Vertical", 23),
    Sketcher.Constraint("Vertical", 24),
    Sketcher.Constraint("Horizontal", 25),
    Sketcher.Constraint("Vertical", 26),
    Sketcher.Constraint("Horizontal", 27),
    Sketcher.Constraint("Horizontal", 28),
    Sketcher.Constraint("Vertical", 29),
    Sketcher.Constraint("Horizontal", 30),
    Sketcher.Constraint("Vertical", 31),
    Sketcher.Constraint("Vertical", 32),
    Sketcher.Constraint("Horizontal", 33),
    Sketcher.Constraint("Vertical", 34),
    Sketcher.Constraint("Horizontal", 35),
    Sketcher.Constraint("Horizontal", 36),
    Sketcher.Constraint("Vertical", 37),
    Sketcher.Constraint("Horizontal", 38),
    Sketcher.Constraint("Vertical", 39),
    Sketcher.Constraint("Vertical", 40),
    Sketcher.Constraint("Horizontal", 41),
    Sketcher.Constraint("Vertical", 42),
    Sketcher.Constraint("Horizontal", 43),
    Sketcher.Constraint("Horizontal", 44),
    Sketcher.Constraint("Vertical", 45),
    Sketcher.Constraint("Horizontal", 46),
    Sketcher.Constraint("Vertical", 47),
    Sketcher.Constraint("Horizontal", 3, 2, 4, 2),
    Sketcher.Constraint("Horizontal", 2, 2, 5, 2),
    Sketcher.Constraint("Horizontal", 7, 2, 8, 2),
    Sketcher.Constraint("Horizontal", 6, 2, 10, 2),
    Sketcher.Constraint("Horizontal", 9, 2, 12, 2),
    Sketcher.Constraint("Horizontal", 11, 2, 13, 2),
    Sketcher.Constraint("Horizontal", 15, 2, 16, 2),
    Sketcher.Constraint("Horizontal", 14, 2, 18, 2),
    Sketcher.Constraint("Horizontal", 17, 2, 20, 2),
    Sketcher.Constraint("Horizontal", 19, 2, 21, 2),
    Sketcher.Constraint("Horizontal", 23, 2, 24, 2),
    Sketcher.Constraint("Horizontal", 22, 2, 26, 2),
    Sketcher.Constraint("Horizontal", 25, 2, 28, 2),
    Sketcher.Constraint("Horizontal", 27, 2, 29, 2),
    Sketcher.Constraint("Horizontal", 31, 2, 32, 2),
    Sketcher.Constraint("Horizontal", 30, 2, 34, 2),
    Sketcher.Constraint("Horizontal", 33, 2, 36, 2),
    Sketcher.Constraint("Horizontal", 35, 2, 37, 2),
    Sketcher.Constraint("Horizontal", 39, 2, 40, 2),
    Sketcher.Constraint("Horizontal", 38, 2, 42, 2),
    Sketcher.Constraint("Horizontal", 41, 2, 44, 2),
    Sketcher.Constraint("Horizontal", 43, 2, 45, 2),
    Sketcher.Constraint("Equal", 2, 4),
    Sketcher.Constraint("Equal", 6, 9),
    Sketcher.Constraint("Equal", 11, 12),
    Sketcher.Constraint("Equal", 14, 17),
    Sketcher.Constraint("Equal", 19, 20),
    Sketcher.Constraint("Equal", 22, 25),
    Sketcher.Constraint("Equal", 27, 28),
    Sketcher.Constraint("Equal", 30, 33),
    Sketcher.Constraint("Equal", 35, 36),
    Sketcher.Constraint("Equal", 38, 41),
    Sketcher.Constraint("Equal", 43, 44),
    Sketcher.Constraint("DistanceX", 4, 2, 0, 2, 5080.0),
    Sketcher.Constraint("DistanceX", 8, 2, 7, 2, 50800.0),
    Sketcher.Constraint("DistanceX", 12, 2, 4, 2, 5080.0),
    Sketcher.Constraint("DistanceX", 8, 2, 16, 2, 5080.0),
    Sketcher.Constraint("DistanceX", 20, 2, 12, 2, 5080.0),
    Sketcher.Constraint("DistanceX", 16, 2, 24, 2, 5080.0),
    Sketcher.Constraint("DistanceX", 28, 2, 20, 2, 5080.0),
    Sketcher.Constraint("DistanceX", 24, 2, 32, 2, 5080.0),
    Sketcher.Constraint("DistanceX", 36, 2, 28, 2, 5080.0),
    Sketcher.Constraint("DistanceX", 32, 2, 40, 2, 5080.0),
    Sketcher.Constraint("DistanceX", 44, 2, 36, 2, 5080.0),
    Sketcher.Constraint("DistanceX", 0, 1, 0, 2, 1553.2365),
    Sketcher.Constraint("DistanceY", 1, 2, 1, 1, 461.5337),
    Sketcher.Constraint("DistanceX", -1, 1, 0, 2, 11714.597),
    Sketcher.Constraint("DistanceY", 1, 2, -1, 1, 38261.469),
])
pocket1 = doc.addObject("PartDesign::Pocket", "Pocket")
body.addObject(pocket1)
pocket1.Profile = sketch4
pocket1.Length = 3000
pocket1.Reversed = True

# Sketch on XZ plane
sketch5 = doc.addObject("Sketcher::SketchObject", "Sketch004")
body.addObject(sketch5)
sketch5.AttachmentSupport = (doc.XZ_Plane, [""])
sketch5.MapMode = "FlatFace"
sketch5.AttachmentOffset = App.Placement(V(0, 0, -4101.6), App.Rotation())
sketch5.addGeometry([
    Part.LineSegment(V(-11607.3718, 45801.5963, 0), V(-11096.9853, 45801.5963, 0)),  # 0
    Part.LineSegment(V(-11096.9853, 45801.5963, 0), V(-11096.9853, 40517.1763, 0)),  # 1
    Part.LineSegment(V(-11096.9853, 40517.1763, 0), V(-11607.3718, 40517.1763, 0)),  # 2
    Part.LineSegment(V(-11607.3718, 40517.1763, 0), V(-11607.3718, 45801.5963, 0)),  # 3
    Part.LineSegment(V(-11607.3718, 29742.4496, 0), V(-11096.9853, 29742.4496, 0)),  # 4
    Part.LineSegment(V(-11096.9853, 29742.4496, 0), V(-11096.9853, 23771.7412, 0)),  # 5
    Part.LineSegment(V(-11096.9853, 23771.7412, 0), V(-11607.3718, 23771.7412, 0)),  # 6
    Part.LineSegment(V(-11607.3718, 23771.7412, 0), V(-11607.3718, 29742.4496, 0)),  # 7
    Part.LineSegment(V(-12765.877, 20314.1354, 0), V(-10448.8665, 20314.1354, 0)),  # 8
    Part.LineSegment(V(-10448.8665, 20314.1354, 0), V(-10448.8665, 3225.5553, 0)),  # 9
    Part.LineSegment(V(-10448.8665, 3225.5553, 0), V(-12765.877, 3225.5553, 0)),  # 10
    Part.LineSegment(V(-12765.877, 3225.5553, 0), V(-12765.877, 20314.1354, 0)),  # 11
], False)
sketch5.addConstraint([
    Sketcher.Constraint("Coincident", 0, 2, 1, 1),
    Sketcher.Constraint("Coincident", 1, 2, 2, 1),
    Sketcher.Constraint("Coincident", 2, 2, 3, 1),
    Sketcher.Constraint("Coincident", 3, 2, 0, 1),
    Sketcher.Constraint("Coincident", 4, 2, 5, 1),
    Sketcher.Constraint("Coincident", 5, 2, 6, 1),
    Sketcher.Constraint("Coincident", 6, 2, 7, 1),
    Sketcher.Constraint("Coincident", 7, 2, 4, 1),
    Sketcher.Constraint("Coincident", 8, 2, 9, 1),
    Sketcher.Constraint("Coincident", 9, 2, 10, 1),
    Sketcher.Constraint("Coincident", 10, 2, 11, 1),
    Sketcher.Constraint("Coincident", 11, 2, 8, 1),
    Sketcher.Constraint("Horizontal", 0),
    Sketcher.Constraint("Vertical", 1),
    Sketcher.Constraint("Horizontal", 2),
    Sketcher.Constraint("Vertical", 3),
    Sketcher.Constraint("Horizontal", 4),
    Sketcher.Constraint("Vertical", 5),
    Sketcher.Constraint("Horizontal", 6),
    Sketcher.Constraint("Vertical", 7),
    Sketcher.Constraint("Horizontal", 8),
    Sketcher.Constraint("Vertical", 9),
    Sketcher.Constraint("Horizontal", 10),
    Sketcher.Constraint("Vertical", 11),
    Sketcher.Constraint("Vertical", 1, 2, 4, 2),
    Sketcher.Constraint("Vertical", 3, 2, 6, 2),
    Sketcher.Constraint("DistanceY", 1, 2, 1, 1, 5284.42),
    Sketcher.Constraint("DistanceY", 9, 2, 9, 1, 17088.58),
    Sketcher.Constraint("DistanceX", 0, 1, 0, 2, 510.3865),
    Sketcher.Constraint("DistanceX", 8, 1, 8, 2, 2317.0105),
    Sketcher.Constraint("DistanceY", 5, 2, 5, 1, 5970.7084),
    Sketcher.Constraint("DistanceX", 10, 2, -1, 1, 12765.877),
    Sketcher.Constraint("DistanceY", 5, 2, 1, 2, 16745.435),
    Sketcher.Constraint("DistanceY", 8, 2, 1, 2, 20203.041),
    Sketcher.Constraint("DistanceX", 0, 2, -1, 1, 11096.9853),
    Sketcher.Constraint("DistanceY", -1, 1, 0, 2, 45801.5963),
])
pocket2 = doc.addObject("PartDesign::Pocket", "Pocket001")
body.addObject(pocket2)
pocket2.Profile = sketch5
pocket2.Length = 3000
pocket2.Reversed = True

# Sketch on XZ plane
sketch6 = doc.addObject("Sketcher::SketchObject", "Sketch005")
body.addObject(sketch6)
sketch6.AttachmentSupport = (doc.XZ_Plane, [""])
sketch6.MapMode = "FlatFace"
sketch6.addGeometry([
    Part.LineSegment(V(50098.5986, 83309.9915, 0), V(-50189.0701, 83309.9915, 0)),
    Part.LineSegment(V(-50189.0701, 83309.9915, 0), V(-50189.0701, -63309.9915, 0)),
    Part.LineSegment(V(-50189.0701, -63309.9915, 0), V(50098.5986, -63309.9915, 0)),
    Part.LineSegment(V(50098.5986, -63309.9915, 0), V(50098.5986, 83309.9915, 0)),
], False)
sketch6.addConstraint([
    Sketcher.Constraint("Coincident", 0, 2, 1, 1),
    Sketcher.Constraint("Coincident", 1, 2, 2, 1),
    Sketcher.Constraint("Coincident", 2, 2, 3, 1),
    Sketcher.Constraint("Coincident", 3, 2, 0, 1),
    Sketcher.Constraint("Horizontal", 0),
    Sketcher.Constraint("Vertical", 1),
    Sketcher.Constraint("Horizontal", 2),
    Sketcher.Constraint("Vertical", 3),
    Sketcher.Constraint("DistanceY", 1, 2, 1, 1, 146619.983),
    Sketcher.Constraint("DistanceX", 0, 2, -1, 1, 50189.07),
    Sketcher.Constraint("DistanceX", 0, 2, 0, 1, 100287.6687),
    Sketcher.Constraint("DistanceY", -1, 1, 0, 2, 83309.9915),
])
pad4 = doc.addObject("PartDesign::Pad", "Pad003")
body.addObject(pad4)
pad4.Profile = sketch6
pad4.Length = 3000

# Sketch on XZ plane
sketch7 = doc.addObject("Sketcher::SketchObject", "Sketch006")
body.addObject(sketch7)
sketch7.AttachmentSupport = (doc.XZ_Plane, [""])
sketch7.MapMode = "FlatFace"
sketch7.AttachmentOffset = App.Placement(V(0, 0, -101.6), App.Rotation())
sketch7.addGeometry([
    Part.Circle(V(-8263.596, -3455.8393, 0), V(0, 0, 1), 63.5),
    Part.Circle(V(-8263.596, -5394.3291, 0), V(0, 0, 1), 63.5),
], False)
sketch7.addConstraint([
    Sketcher.Constraint("Equal", 0, 1),
    Sketcher.Constraint("Vertical", 0, 3, 1, 3),
    Sketcher.Constraint("Diameter", 0, 127.0),
    Sketcher.Constraint("DistanceX", 0, 3, -1, 1, 8263.596),
    Sketcher.Constraint("DistanceY", 1, 3, -1, 1, 5394.329),
    Sketcher.Constraint("DistanceY", 0, 3, -1, 1, 3455.8393),
])
pad5 = doc.addObject("PartDesign::Pad", "Pad004")
body.addObject(pad5)
pad5.Profile = sketch7
pad5.Length = 1000
pad5.Reversed = True

# Sketch on XZ plane
sketch8 = doc.addObject("Sketcher::SketchObject", "Sketch007")
body.addObject(sketch8)
sketch8.AttachmentSupport = (doc.XZ_Plane, [""])
sketch8.MapMode = "FlatFace"
sketch8.AttachmentOffset = App.Placement(V(0, 0, -101.6), App.Rotation())
sketch8.addGeometry(Part.Circle(V(-15514.7995, -37324.4316, 0), V(0, 0, 1), 76.2), False)
sketch8.addConstraint([
    Sketcher.Constraint("Diameter", 0, 152.4),
    Sketcher.Constraint("DistanceX", 0, 3, -1, 1, 15514.7995),
    Sketcher.Constraint("DistanceY", 0, 3, -1, 1, 37324.4316),
])
pad6 = doc.addObject("PartDesign::Pad", "Pad005")
body.addObject(pad6)
pad6.Profile = sketch8
pad6.Length = 2000
pad6.Reversed = True

# Sketch on XZ plane
sketch9 = doc.addObject("Sketcher::SketchObject", "Sketch008")
body.addObject(sketch9)
sketch9.AttachmentSupport = (doc.XZ_Plane, [""])
sketch9.MapMode = "FlatFace"
sketch9.AttachmentOffset = App.Placement(V(0, 0, -4101.6), App.Rotation())
sketch9.addGeometry([
    Part.LineSegment(V(13849.7914, -13595.7871, 0), V(13849.7914, -12792.7441, 0)),
    Part.LineSegment(V(13849.7914, -12792.7441, 0), V(14090.6553, -12792.7441, 0)),
    Part.LineSegment(V(14090.6553, -12792.7441, 0), V(14090.6553, -13595.7871, 0)),
    Part.LineSegment(V(14090.6553, -13595.7871, 0), V(13849.7914, -13595.7871, 0)),
], False)
sketch9.addConstraint([
    Sketcher.Constraint("Coincident", 0, 2, 1, 1),
    Sketcher.Constraint("Coincident", 1, 2, 2, 1),
    Sketcher.Constraint("Coincident", 2, 2, 3, 1),
    Sketcher.Constraint("Coincident", 3, 2, 0, 1),
    Sketcher.Constraint("Vertical", 0),
    Sketcher.Constraint("Horizontal", 1),
    Sketcher.Constraint("Vertical", 2),
    Sketcher.Constraint("Horizontal", 3),
    Sketcher.Constraint("DistanceX", 1, 1, 1, 2, 240.864),
    Sketcher.Constraint("DistanceY", 0, 1, 0, 2, 803.043),
    Sketcher.Constraint("DistanceY", 0, 2, -1, 1, 12792.744),
    Sketcher.Constraint("DistanceX", -1, 1, 0, 2, 13849.7914),
])
pocket3 = doc.addObject("PartDesign::Pocket", "Pocket002")
body.addObject(pocket3)
pocket3.Profile = sketch9
pocket3.Length = 4000
pocket3.Reversed = True
doc.recompute()

linearpattern = doc.addObject("PartDesign::LinearPattern", "LinearPattern")
body.addObject(linearpattern)
linearpattern.Originals = [pocket3]
linearpattern.Direction = (doc.Z_Axis, [""])
linearpattern.Mode = "offset"
linearpattern.Offset = 1524
linearpattern.Occurrences = 56
body.Tip = linearpattern

doc.recompute()
